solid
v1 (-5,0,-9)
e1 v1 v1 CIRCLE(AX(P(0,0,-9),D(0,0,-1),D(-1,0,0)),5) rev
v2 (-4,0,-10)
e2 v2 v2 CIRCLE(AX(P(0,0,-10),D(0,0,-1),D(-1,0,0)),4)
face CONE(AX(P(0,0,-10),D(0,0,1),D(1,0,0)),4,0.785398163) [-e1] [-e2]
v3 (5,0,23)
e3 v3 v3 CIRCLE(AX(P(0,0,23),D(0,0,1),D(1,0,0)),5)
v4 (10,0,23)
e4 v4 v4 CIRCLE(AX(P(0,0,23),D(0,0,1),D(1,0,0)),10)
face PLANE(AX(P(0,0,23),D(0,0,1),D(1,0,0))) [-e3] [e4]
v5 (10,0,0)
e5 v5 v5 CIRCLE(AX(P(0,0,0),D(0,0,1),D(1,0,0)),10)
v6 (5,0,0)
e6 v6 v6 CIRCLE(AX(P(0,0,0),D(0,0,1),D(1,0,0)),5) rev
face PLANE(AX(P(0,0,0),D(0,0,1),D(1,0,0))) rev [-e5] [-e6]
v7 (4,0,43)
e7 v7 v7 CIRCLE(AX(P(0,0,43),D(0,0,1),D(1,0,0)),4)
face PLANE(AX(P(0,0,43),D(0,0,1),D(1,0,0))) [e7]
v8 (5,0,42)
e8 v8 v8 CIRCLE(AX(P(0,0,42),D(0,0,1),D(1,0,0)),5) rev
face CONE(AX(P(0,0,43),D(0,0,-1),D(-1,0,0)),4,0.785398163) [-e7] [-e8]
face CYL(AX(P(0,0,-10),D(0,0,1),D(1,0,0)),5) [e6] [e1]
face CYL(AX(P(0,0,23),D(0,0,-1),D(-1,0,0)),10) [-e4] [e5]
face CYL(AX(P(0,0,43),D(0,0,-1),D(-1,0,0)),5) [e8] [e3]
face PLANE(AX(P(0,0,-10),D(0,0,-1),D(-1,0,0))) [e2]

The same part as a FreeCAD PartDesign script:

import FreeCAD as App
import Part
import Sketcher
from FreeCAD import Vector


def edges_at(feature, points):
    """Names of the edges that pass closest to the given points."""
    edges = feature.Shape.Edges
    near = lambda p: min(range(len(edges)), key=lambda i: edges[i].distToShape(Part.Vertex(*p))[0])
    return sorted({f"Edge{near(p) + 1}" for p in points})

doc = App.newDocument("Part")
body = doc.addObject("PartDesign::Body", "Body")

# Sketch on XY plane
sketch1 = doc.addObject("Sketcher::SketchObject", "Sketch")
body.addObject(sketch1)
sketch1.AttachmentSupport = (doc.XY_Plane, [""])
sketch1.MapMode = "FlatFace"
sketch1.addGeometry(Part.Circle(Vector(0, 0, 0), Vector(0, 0, 1), 10), False)
sketch1.addConstraint([
    Sketcher.Constraint("Coincident", 0, 3, -1, 1),
    Sketcher.Constraint("Diameter", 0, 20.0),
])
pad1 = doc.addObject("PartDesign::Pad", "Pad")
body.addObject(pad1)
pad1.Profile = sketch1
pad1.Length = 23

# Sketch on XY plane
sketch2 = doc.addObject("Sketcher::SketchObject", "Sketch001")
body.addObject(sketch2)
sketch2.AttachmentSupport = (doc.XY_Plane, [""])
sketch2.MapMode = "FlatFace"
sketch2.AttachmentOffset = App.Placement(Vector(0, 0, 23), App.Rotation())
sketch2.addGeometry(Part.Circle(Vector(0, 0, 0), Vector(0, 0, 1), 5), False)
sketch2.addConstraint([
    Sketcher.Constraint("Coincident", 0, 3, -1, 1),
    Sketcher.Constraint("Diameter", 0, 10.0),
])
pad2 = doc.addObject("PartDesign::Pad", "Pad001")
body.addObject(pad2)
pad2.Profile = sketch2
pad2.Length = 20

# Sketch on XY plane
sketch3 = doc.addObject("Sketcher::SketchObject", "Sketch002")
body.addObject(sketch3)
sketch3.AttachmentSupport = (doc.XY_Plane, [""])
sketch3.MapMode = "FlatFace"
sketch3.AttachmentOffset = App.Placement(Vector(0, 0, -10), App.Rotation())
sketch3.addGeometry(Part.Circle(Vector(0, 0, 0), Vector(0, 0, 1), 5), False)
sketch3.addConstraint([
    Sketcher.Constraint("Coincident", 0, 3, -1, 1),
    Sketcher.Constraint("Diameter", 0, 10.0),
])
pad3 = doc.addObject("PartDesign::Pad", "Pad002")
body.addObject(pad3)
pad3.Profile = sketch3
pad3.Length = 10
doc.recompute()

chamfer = doc.addObject("PartDesign::Chamfer", "Chamfer")
body.addObject(chamfer)
chamfer.Base = (pad3, edges_at(pad3, [(-5, 0, -10)]))
chamfer.Size = 1
doc.recompute()

chamfer2 = doc.addObject("PartDesign::Chamfer", "Chamfer001")
body.addObject(chamfer2)
chamfer2.Base = (chamfer, edges_at(chamfer, [(-5, 0, 43)]))
chamfer2.Size = 1

doc.recompute()
